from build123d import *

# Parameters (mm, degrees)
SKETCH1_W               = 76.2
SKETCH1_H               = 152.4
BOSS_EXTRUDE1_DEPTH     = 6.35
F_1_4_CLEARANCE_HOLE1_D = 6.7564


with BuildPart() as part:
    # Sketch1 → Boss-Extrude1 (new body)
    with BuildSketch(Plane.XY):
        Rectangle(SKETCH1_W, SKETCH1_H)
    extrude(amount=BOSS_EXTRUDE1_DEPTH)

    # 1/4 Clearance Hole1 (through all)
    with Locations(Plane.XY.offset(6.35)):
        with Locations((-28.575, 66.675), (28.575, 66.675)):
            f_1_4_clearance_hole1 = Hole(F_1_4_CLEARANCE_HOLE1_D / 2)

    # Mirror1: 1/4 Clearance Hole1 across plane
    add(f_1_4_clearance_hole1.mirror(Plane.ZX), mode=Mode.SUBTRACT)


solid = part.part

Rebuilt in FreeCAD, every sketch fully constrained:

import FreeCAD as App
import Part
import Sketcher
Q = App.Units.Quantity


def add_polygon(sketch, points):
    """Adds a closed chain of lines whose ends are joined by coincident constraints."""
    first, n = sketch.GeometryCount, len(points)
    for a, b in zip(points, points[1:] + points[:1]):
        sketch.addGeometry(Part.LineSegment(App.Vector(*a, 0), App.Vector(*b, 0)), False)
    for i in range(n):
        sketch.addConstraint(Sketcher.Constraint("Coincident", first + i, 2, first + (i + 1) % n, 1))

doc = App.newDocument("Part")
params = doc.addObject("Spreadsheet::Sheet", "Params")
for row, (alias, value) in enumerate([
    ("sketch1_width", "3 in"),
    ("sketch1_height", "6 in"),
    ("pad1_length", "0.25 in"),
    ("sketch2_diameter", "0.266 in"),
    ("hole_diameter", "0.266 in"),
], start=1):
    params.set(f"A{row}", alias)
    params.set(f"B{row}", "=" + value)
    params.setAlias(f"B{row}", alias)

body = doc.addObject("PartDesign::Body", "Body")

# Sketch on XY plane
sketch1 = body.newObject("Sketcher::SketchObject", "Sketch")
sketch1.AttachmentSupport = (doc.getObject("XY_Plane"), [""])
sketch1.MapMode = "FlatFace"
add_polygon(sketch1, [(-38, 76), (-38, -76), (38, -76), (38, 76)])  # lines 0-3
sketch1.addConstraint(Sketcher.Constraint("Vertical", 0))
sketch1.addConstraint(Sketcher.Constraint("Horizontal", 1))
sketch1.addConstraint(Sketcher.Constraint("Vertical", 2))
sketch1.addConstraint(Sketcher.Constraint("Horizontal", 3))
sketch1.addConstraint(Sketcher.Constraint("Symmetric", 0, 2, 2, 2, -1, 1))
sketch1.addConstraint(Sketcher.Constraint("DistanceX", 1, 1, 1, 2, Q("3 in")))
sketch1.addConstraint(Sketcher.Constraint("DistanceY", 0, 2, 0, 1, Q("6 in")))
sketch1.setExpression("Constraints[9]", "Params.sketch1_width")
sketch1.setExpression("Constraints[10]", "Params.sketch1_height")
pad1 = body.newObject("PartDesign::Pad", "Pad")
pad1.Profile = sketch1
pad1.setExpression("Length", "Params.pad1_length")

# Sketch on XY plane
sketch2 = body.newObject("Sketcher::SketchObject", "Sketch001")
sketch2.AttachmentSupport = (doc.getObject("XY_Plane"), [""])
sketch2.MapMode = "FlatFace"
sketch2.AttachmentOffset = App.Placement(App.Vector(0, 0, 0.25 * 25.4), App.Rotation())
sketch2.addGeometry(Part.Circle(App.Vector(-28.6, 66.7, 0), App.Vector(0, 0, 1), 3.4), False)
sketch2.addGeometry(Part.Circle(App.Vector(28.6, 66.7, 0), App.Vector(0, 0, 1), 3.4), False)
sketch2.addConstraint(Sketcher.Constraint("Equal", 0, 1))
sketch2.addConstraint(Sketcher.Constraint("Symmetric", 0, 3, 1, 3, -2))
sketch2.addConstraint(Sketcher.Constraint("Diameter", 0, Q("0.266 in")))
sketch2.addConstraint(Sketcher.Constraint("DistanceX", 0, 3, 1, 3, Q("2.25 in")))
sketch2.addConstraint(Sketcher.Constraint("DistanceY", -1, 1, 0, 3, Q("2.625 in")))
sketch2.setExpression("Constraints[2]", "Params.sketch2_diameter")
doc.recompute()
hole = body.newObject("PartDesign::Hole", "Hole")
hole.Profile = sketch2
hole.ThreadType = "None"
hole.setExpression("Diameter", "Params.hole_diameter")
hole.DepthType = "ThroughAll"
doc.recompute()

mirrored = body.newObject("PartDesign::Mirrored", "Mirrored")
mirrored.Originals = [hole]
mirrored.MirrorPlane = (doc.getObject("XZ_Plane"), [""])
body.Tip = mirrored

doc.recompute()
